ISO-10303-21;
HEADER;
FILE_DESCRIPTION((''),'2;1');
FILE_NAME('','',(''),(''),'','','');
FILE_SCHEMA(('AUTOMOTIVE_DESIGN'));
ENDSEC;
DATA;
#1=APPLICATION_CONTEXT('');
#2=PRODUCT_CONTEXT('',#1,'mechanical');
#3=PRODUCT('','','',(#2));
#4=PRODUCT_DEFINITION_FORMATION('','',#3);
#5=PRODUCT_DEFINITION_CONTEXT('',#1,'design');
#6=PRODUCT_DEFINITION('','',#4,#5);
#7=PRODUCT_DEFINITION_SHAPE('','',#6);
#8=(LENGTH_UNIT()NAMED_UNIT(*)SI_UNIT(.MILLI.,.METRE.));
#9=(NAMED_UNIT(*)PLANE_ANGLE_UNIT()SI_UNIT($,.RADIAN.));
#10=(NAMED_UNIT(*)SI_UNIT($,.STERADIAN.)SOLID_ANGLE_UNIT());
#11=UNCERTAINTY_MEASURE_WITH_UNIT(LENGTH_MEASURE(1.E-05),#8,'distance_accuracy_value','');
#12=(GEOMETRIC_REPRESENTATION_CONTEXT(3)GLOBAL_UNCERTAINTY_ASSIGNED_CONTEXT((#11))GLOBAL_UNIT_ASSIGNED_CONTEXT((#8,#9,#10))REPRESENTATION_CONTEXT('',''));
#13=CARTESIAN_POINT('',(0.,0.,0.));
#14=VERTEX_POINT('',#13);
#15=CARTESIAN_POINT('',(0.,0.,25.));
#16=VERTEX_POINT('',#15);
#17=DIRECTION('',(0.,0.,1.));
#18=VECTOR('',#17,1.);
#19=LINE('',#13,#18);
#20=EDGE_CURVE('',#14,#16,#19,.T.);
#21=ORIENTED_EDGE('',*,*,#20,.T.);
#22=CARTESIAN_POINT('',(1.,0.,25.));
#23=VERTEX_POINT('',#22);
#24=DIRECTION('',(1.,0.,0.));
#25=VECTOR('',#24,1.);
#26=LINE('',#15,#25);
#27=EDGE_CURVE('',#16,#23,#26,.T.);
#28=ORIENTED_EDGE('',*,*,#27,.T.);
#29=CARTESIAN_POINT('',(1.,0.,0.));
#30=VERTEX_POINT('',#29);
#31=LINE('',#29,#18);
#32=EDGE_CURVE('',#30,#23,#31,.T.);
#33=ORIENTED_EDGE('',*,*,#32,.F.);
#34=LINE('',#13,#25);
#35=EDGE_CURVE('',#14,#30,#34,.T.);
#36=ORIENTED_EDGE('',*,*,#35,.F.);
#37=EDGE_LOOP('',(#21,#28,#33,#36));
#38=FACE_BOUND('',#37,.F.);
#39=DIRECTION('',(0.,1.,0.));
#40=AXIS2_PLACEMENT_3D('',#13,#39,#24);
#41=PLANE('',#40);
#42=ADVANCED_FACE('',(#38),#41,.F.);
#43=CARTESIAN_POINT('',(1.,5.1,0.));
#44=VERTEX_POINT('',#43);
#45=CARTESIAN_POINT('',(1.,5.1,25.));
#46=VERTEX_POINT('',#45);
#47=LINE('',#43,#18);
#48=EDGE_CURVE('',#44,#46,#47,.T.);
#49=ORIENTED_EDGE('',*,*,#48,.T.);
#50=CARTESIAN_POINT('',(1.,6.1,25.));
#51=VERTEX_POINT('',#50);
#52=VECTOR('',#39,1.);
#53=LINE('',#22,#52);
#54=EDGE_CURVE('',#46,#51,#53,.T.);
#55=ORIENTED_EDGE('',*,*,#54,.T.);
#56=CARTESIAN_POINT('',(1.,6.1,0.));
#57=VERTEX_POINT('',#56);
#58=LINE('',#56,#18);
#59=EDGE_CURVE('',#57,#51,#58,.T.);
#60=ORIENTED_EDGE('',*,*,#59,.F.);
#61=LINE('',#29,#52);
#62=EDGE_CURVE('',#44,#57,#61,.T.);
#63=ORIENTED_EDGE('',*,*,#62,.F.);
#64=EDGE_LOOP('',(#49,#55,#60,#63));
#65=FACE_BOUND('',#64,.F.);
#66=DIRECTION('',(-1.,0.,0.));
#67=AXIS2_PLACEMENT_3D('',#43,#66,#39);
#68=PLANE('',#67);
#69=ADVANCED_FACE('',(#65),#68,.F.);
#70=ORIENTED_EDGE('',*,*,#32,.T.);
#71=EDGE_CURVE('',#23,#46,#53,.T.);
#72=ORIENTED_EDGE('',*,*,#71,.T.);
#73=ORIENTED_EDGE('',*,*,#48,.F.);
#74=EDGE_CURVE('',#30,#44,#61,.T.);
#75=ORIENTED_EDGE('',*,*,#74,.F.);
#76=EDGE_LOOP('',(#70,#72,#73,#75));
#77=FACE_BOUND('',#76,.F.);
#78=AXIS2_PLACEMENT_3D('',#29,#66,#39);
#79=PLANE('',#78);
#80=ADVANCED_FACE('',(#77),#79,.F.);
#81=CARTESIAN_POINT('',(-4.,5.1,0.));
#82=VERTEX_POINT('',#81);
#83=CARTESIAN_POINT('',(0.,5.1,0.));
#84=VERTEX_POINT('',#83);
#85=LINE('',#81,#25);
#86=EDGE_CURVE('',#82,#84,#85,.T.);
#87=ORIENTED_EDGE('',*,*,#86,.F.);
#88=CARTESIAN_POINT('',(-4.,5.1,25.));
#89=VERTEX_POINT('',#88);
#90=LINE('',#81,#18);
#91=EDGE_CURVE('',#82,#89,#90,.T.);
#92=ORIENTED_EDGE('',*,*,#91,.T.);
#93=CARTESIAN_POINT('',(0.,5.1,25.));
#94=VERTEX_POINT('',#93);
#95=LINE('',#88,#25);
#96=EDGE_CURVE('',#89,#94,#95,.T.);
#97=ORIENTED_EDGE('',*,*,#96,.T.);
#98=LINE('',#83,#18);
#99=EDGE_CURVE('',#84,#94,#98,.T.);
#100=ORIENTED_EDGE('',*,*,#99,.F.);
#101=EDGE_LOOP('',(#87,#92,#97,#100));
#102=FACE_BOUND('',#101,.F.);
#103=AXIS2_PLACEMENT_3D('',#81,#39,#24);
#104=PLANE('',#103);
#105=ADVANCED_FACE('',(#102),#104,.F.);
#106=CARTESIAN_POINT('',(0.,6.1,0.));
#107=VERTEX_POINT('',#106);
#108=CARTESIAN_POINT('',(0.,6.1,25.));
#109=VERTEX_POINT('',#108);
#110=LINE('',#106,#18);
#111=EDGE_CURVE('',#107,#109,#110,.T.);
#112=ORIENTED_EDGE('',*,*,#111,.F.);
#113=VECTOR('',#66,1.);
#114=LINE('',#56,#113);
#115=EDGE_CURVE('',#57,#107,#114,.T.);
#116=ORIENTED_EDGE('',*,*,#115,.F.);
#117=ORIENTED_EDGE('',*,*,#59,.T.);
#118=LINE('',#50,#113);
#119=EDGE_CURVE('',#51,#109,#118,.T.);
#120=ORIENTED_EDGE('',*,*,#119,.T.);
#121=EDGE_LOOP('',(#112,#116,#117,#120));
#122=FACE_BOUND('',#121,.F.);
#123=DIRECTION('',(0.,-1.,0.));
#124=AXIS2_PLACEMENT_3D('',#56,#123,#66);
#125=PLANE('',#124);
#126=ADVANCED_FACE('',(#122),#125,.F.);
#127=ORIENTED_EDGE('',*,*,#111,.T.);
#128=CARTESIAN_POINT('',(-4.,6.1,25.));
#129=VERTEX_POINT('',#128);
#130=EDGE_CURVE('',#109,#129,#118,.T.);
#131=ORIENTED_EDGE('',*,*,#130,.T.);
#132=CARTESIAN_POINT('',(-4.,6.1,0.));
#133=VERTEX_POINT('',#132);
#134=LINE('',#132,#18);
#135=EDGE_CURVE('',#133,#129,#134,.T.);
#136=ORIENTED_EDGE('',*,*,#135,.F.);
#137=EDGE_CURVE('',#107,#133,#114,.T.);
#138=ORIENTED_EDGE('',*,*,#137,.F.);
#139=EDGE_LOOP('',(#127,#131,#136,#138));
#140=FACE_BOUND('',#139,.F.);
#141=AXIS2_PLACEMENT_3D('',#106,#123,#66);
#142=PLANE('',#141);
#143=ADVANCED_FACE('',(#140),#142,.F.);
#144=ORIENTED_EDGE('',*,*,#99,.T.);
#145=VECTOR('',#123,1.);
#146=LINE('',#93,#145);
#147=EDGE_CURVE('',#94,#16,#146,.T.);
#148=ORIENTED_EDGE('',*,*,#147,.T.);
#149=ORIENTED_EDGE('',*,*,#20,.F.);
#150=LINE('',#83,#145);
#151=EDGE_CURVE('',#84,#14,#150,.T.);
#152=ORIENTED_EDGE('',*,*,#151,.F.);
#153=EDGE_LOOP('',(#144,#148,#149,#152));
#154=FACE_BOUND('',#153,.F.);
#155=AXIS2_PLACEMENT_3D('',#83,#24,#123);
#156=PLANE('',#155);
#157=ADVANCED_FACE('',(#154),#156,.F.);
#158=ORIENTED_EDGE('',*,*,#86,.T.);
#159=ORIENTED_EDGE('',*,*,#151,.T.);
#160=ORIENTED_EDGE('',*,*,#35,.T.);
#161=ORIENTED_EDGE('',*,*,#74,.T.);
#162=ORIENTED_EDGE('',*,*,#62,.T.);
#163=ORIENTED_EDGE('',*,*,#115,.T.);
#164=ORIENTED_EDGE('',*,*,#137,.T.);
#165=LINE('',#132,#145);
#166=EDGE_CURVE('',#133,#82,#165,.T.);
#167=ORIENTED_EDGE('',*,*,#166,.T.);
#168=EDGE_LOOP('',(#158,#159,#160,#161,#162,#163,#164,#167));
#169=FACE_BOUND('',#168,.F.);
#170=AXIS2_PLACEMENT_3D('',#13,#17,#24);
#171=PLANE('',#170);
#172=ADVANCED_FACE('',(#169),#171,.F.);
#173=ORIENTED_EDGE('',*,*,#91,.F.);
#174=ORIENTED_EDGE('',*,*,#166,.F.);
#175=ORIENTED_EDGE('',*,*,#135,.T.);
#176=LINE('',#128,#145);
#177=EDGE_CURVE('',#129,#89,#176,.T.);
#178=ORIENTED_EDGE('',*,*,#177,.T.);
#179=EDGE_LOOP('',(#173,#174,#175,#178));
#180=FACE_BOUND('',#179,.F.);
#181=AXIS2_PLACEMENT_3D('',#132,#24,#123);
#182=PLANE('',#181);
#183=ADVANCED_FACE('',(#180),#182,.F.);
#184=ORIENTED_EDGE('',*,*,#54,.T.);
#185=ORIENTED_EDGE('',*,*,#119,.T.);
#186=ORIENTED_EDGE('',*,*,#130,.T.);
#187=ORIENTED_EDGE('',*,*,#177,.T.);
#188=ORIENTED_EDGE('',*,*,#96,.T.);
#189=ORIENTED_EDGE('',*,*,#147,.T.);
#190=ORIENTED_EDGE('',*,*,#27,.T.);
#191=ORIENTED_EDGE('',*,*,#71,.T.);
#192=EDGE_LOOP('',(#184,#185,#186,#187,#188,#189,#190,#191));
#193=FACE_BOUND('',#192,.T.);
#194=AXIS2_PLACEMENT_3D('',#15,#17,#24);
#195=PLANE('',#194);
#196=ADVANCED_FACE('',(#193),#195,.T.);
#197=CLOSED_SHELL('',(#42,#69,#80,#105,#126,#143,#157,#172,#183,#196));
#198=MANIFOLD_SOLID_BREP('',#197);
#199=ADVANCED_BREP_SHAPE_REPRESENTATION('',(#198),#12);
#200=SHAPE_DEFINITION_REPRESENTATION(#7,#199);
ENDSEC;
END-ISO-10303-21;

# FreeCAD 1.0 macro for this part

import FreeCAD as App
import Part
import Sketcher
from FreeCAD import Vector
Q = App.Units.Quantity


def add_polygon(sketch, points):
    """Adds a closed chain of lines whose ends are joined by coincident constraints."""
    first, n = sketch.GeometryCount, len(points)
    for a, b in zip(points, points[1:] + points[:1]):
        sketch.addGeometry(Part.LineSegment(App.Vector(*a, 0), App.Vector(*b, 0)), False)
    for i in range(n):
        sketch.addConstraint(Sketcher.Constraint("Coincident", first + i, 2, first + (i + 1) % n, 1))

doc = App.newDocument("Part")
params = doc.addObject("Spreadsheet::Sheet", "Params")
for row, (alias, value) in enumerate([
    ("sketch1_width", "1 mm"),
    ("sketch1_width2", "4 mm"),
    ("sketch1_height", "5.1 mm"),
    ("pad1_length", "25 mm"),
], start=1):
    params.set(f"A{row}", alias)
    params.set(f"B{row}", "=" + value)
    params.setAlias(f"B{row}", alias)

body = doc.addObject("PartDesign::Body", "Body")

# Sketch on XY plane
sketch1 = body.newObject("Sketcher::SketchObject", "Sketch")
sketch1.AttachmentSupport = (doc.getObject("XY_Plane"), [""])
sketch1.MapMode = "FlatFace"
add_polygon(sketch1, [(0, 5.1), (0, 0), (1, 0), (1, 6.1), (-4, 6.1), (-4, 5.1)])  # lines 0-5
sketch1.addConstraint([
    Sketcher.Constraint("Vertical", 0),
    Sketcher.Constraint("Horizontal", 1),
    Sketcher.Constraint("Vertical", 2),
    Sketcher.Constraint("Horizontal", 3),
    Sketcher.Constraint("Vertical", 4),
    Sketcher.Constraint("Horizontal", 5),
    Sketcher.Constraint("Coincident", 0, 2, -1, 1),
    Sketcher.Constraint("Equal", 1, 4),
    Sketcher.Constraint("DistanceX", 1, 1, 1, 2, Q("1 mm")),
    Sketcher.Constraint("DistanceX", 5, 1, 5, 2, Q("4 mm")),
    Sketcher.Constraint("DistanceY", 0, 2, 0, 1, Q("5.1 mm")),
])
sketch1.setExpression("Constraints[14]", "Params.sketch1_width")
sketch1.setExpression("Constraints[15]", "Params.sketch1_width2")
sketch1.setExpression("Constraints[16]", "Params.sketch1_height")
pad1 = body.newObject("PartDesign::Pad", "Pad")
pad1.Profile = sketch1
pad1.setExpression("Length", "Params.pad1_length")

doc.recompute()
